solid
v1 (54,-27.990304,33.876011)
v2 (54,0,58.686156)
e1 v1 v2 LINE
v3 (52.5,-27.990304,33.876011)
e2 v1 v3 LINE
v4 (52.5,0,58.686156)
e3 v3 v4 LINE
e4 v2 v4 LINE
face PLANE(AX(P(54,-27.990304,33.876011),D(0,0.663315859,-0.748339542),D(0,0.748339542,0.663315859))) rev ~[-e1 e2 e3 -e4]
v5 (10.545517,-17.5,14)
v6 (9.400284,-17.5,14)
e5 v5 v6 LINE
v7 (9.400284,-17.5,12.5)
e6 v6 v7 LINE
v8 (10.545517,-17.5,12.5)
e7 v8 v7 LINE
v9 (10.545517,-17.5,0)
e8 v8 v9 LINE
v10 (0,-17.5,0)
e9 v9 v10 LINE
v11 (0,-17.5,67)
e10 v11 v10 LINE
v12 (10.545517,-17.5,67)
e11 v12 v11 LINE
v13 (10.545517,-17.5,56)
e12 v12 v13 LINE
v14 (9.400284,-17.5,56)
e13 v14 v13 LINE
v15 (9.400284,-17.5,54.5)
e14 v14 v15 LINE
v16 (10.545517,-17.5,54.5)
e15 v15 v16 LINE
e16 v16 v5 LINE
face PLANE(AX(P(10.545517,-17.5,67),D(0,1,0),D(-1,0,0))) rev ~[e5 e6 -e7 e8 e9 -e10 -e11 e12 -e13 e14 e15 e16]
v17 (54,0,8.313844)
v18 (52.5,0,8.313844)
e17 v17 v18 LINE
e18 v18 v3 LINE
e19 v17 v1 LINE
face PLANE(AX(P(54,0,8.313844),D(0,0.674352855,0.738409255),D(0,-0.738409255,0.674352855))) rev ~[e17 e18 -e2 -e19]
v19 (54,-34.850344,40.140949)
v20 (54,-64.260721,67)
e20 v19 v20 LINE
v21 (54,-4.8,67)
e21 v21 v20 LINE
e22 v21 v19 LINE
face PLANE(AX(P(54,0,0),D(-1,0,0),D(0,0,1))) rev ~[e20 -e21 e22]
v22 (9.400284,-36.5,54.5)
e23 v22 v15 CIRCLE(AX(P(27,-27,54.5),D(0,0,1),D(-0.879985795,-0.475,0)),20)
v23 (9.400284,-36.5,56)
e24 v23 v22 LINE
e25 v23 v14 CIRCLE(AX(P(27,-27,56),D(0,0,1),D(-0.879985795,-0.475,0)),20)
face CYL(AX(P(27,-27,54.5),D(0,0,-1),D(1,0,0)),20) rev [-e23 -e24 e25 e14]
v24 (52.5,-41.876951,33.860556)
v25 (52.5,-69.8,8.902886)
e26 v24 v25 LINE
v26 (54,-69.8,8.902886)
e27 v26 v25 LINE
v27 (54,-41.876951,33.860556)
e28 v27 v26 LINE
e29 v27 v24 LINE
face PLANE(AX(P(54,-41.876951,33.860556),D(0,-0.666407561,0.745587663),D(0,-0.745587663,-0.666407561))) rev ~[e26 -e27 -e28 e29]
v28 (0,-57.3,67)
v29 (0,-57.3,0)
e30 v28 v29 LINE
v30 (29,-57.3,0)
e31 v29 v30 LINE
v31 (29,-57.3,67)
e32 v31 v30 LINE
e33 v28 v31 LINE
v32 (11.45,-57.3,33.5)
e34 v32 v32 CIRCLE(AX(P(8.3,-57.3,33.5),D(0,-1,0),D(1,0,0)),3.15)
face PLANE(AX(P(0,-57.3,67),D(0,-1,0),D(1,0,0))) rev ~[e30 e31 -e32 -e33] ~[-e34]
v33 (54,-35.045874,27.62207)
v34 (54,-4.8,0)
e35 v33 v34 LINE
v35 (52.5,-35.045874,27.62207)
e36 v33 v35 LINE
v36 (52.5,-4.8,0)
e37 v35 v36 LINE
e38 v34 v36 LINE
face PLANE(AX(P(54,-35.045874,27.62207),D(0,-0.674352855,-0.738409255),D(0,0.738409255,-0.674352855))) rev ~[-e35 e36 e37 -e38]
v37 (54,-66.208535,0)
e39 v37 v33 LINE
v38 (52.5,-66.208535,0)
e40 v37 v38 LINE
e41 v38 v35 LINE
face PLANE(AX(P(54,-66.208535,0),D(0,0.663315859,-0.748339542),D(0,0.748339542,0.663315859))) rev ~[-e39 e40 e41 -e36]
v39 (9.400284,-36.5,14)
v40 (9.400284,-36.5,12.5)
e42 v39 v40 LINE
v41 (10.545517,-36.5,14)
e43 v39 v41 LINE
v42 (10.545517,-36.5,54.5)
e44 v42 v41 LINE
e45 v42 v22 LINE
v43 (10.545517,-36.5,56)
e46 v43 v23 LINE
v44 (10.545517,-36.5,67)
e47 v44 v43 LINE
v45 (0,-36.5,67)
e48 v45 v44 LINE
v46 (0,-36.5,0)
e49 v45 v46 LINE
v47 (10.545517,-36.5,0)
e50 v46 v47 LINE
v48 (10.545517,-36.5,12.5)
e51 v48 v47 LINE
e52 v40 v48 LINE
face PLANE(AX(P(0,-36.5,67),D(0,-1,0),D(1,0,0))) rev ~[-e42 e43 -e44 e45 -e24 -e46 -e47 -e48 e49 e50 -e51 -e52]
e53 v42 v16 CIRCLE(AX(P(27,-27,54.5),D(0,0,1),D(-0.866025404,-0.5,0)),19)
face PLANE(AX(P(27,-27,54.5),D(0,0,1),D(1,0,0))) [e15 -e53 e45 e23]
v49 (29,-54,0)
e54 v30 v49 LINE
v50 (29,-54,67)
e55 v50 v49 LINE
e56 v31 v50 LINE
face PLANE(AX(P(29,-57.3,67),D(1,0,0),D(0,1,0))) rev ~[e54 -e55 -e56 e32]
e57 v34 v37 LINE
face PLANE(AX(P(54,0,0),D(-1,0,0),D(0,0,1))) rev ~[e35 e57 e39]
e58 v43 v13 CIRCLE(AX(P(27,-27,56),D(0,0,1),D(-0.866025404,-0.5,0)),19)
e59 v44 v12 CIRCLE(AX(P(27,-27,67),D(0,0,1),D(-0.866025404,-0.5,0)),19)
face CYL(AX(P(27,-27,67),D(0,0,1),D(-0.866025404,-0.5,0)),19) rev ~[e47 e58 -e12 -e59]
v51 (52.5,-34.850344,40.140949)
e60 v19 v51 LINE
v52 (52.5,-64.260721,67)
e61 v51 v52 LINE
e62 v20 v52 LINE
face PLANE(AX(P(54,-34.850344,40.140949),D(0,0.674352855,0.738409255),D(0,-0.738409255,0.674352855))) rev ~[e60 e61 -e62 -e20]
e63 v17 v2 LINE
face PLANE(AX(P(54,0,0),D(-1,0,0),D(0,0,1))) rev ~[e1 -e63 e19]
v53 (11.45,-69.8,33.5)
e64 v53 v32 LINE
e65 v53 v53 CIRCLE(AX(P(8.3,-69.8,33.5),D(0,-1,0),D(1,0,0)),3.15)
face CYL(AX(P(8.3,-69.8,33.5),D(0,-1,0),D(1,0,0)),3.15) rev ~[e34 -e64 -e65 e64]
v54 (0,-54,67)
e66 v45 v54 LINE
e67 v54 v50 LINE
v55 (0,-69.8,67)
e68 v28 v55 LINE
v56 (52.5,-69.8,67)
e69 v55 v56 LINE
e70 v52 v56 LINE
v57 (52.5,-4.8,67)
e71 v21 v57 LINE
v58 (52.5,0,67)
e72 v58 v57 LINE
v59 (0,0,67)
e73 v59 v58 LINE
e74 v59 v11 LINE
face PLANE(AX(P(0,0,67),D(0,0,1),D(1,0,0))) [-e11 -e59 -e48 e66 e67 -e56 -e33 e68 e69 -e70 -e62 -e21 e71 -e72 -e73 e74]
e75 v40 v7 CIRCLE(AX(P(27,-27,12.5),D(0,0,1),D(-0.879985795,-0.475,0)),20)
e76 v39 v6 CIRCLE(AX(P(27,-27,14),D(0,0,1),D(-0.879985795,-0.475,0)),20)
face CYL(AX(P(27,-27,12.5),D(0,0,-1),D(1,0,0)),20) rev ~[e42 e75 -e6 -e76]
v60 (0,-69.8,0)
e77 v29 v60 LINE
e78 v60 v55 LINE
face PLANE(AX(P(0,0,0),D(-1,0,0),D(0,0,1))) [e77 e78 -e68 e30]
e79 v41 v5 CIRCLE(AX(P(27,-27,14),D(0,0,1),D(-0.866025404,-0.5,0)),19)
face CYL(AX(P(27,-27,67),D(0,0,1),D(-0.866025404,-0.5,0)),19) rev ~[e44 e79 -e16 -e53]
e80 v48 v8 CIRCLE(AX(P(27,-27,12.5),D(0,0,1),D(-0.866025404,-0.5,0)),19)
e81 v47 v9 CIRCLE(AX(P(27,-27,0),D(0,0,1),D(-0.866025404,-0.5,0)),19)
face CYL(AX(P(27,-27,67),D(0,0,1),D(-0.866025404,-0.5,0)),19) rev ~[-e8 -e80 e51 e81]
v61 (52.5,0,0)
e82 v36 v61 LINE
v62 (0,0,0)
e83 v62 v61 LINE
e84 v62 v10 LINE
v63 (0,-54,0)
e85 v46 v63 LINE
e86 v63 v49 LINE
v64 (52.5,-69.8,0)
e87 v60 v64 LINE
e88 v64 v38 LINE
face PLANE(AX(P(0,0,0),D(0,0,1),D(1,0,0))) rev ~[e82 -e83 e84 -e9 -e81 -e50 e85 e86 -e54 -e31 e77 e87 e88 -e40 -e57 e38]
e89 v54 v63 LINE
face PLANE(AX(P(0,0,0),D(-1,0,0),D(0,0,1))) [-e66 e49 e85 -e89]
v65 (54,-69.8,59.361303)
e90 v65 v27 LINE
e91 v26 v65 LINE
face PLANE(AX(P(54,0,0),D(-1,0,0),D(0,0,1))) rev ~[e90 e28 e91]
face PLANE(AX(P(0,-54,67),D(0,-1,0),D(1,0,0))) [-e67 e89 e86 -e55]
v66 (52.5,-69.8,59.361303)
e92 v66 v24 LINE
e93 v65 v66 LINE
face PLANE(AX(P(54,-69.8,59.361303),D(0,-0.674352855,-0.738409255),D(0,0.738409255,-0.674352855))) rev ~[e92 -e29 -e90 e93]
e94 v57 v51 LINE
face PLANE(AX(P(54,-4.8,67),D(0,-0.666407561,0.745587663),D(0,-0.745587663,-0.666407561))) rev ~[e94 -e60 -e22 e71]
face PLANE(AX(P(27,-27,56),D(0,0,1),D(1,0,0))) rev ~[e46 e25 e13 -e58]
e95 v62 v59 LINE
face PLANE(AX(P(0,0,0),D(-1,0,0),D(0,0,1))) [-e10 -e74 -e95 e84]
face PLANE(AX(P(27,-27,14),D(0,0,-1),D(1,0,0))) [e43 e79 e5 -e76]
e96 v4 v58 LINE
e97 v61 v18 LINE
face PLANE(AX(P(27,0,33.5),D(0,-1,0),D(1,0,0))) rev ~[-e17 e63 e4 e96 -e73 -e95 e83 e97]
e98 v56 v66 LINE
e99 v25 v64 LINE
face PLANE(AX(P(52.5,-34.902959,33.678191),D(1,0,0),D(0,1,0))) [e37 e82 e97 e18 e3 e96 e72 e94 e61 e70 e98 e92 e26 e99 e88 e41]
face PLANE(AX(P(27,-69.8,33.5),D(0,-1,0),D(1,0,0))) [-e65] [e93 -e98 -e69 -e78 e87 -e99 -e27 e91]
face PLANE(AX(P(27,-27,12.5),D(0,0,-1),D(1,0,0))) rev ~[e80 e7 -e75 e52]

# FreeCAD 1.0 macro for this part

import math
import FreeCAD as App
import Part
import Sketcher


def add_polygon(sketch, points):
    """Adds a closed chain of lines whose ends are joined by coincident constraints."""
    first, n = sketch.GeometryCount, len(points)
    for a, b in zip(points, points[1:] + points[:1]):
        sketch.addGeometry(Part.LineSegment(App.Vector(*a, 0), App.Vector(*b, 0)), False)
    for i in range(n):
        sketch.addConstraint(Sketcher.Constraint("Coincident", first + i, 2, first + (i + 1) % n, 1))

doc = App.newDocument("Part")
body = doc.addObject("PartDesign::Body", "Body")

sketch1 = doc.addObject("Sketcher::SketchObject", "Sketch")
body.addObject(sketch1)
sketch1.AttachmentSupport = (doc.XZ_Plane, [""])
sketch1.MapMode = "FlatFace"
add_polygon(sketch1, [(0, 67), (0, 0), (54, 0), (54, 67)])
sketch1.addConstraint([
    Sketcher.Constraint("Vertical", 0),
    Sketcher.Constraint("Horizontal", 1),
    Sketcher.Constraint("Vertical", 2),
    Sketcher.Constraint("Horizontal", 3),
    Sketcher.Constraint("Coincident", 0, 2, -1, 1),
    Sketcher.Constraint("DistanceX", 1, 1, 1, 2, 54.0),
    Sketcher.Constraint("DistanceY", 0, 2, 0, 1, 67.0),
])
pad1 = doc.addObject("PartDesign::Pad", "Pad")
body.addObject(pad1)
pad1.Profile = sketch1
pad1.Length = 69.8

sketch2 = doc.addObject("Sketcher::SketchObject", "Sketch001")
body.addObject(sketch2)
sketch2.AttachmentSupport = (doc.XY_Plane, [""])
sketch2.MapMode = "FlatFace"
sketch2.AttachmentOffset = App.Placement(App.Vector(0, 0, 67), App.Rotation())
sketch2.addGeometry(Part.LineSegment(App.Vector(0, -36.5, 0), App.Vector(10.545517, -36.5, 0)), False)
sketch2.addGeometry(Part.ArcOfCircle(Part.Circle(App.Vector(27, -27, 0), App.Vector(0, 0, 1), 19), math.radians(-150), math.radians(150)), False)
sketch2.addGeometry(Part.LineSegment(App.Vector(10.545517, -17.5, 0), App.Vector(0, -17.5, 0)), False)
sketch2.addGeometry(Part.LineSegment(App.Vector(0, -17.5, 0), App.Vector(0, -36.5, 0)), False)
add_polygon(sketch2, [(0, -54), (0, -57.3), (29, -57.3), (29, -54)])
sketch2.addConstraint([
    Sketcher.Constraint("Coincident", 0, 2, 1, 1),
    Sketcher.Constraint("Coincident", 1, 2, 2, 1),
    Sketcher.Constraint("Coincident", 2, 2, 3, 1),
    Sketcher.Constraint("Coincident", 3, 2, 0, 1),
    Sketcher.Constraint("Horizontal", 0),
    Sketcher.Constraint("Horizontal", 2),
    Sketcher.Constraint("Vertical", 3),
    Sketcher.Constraint("Vertical", 4),
    Sketcher.Constraint("Horizontal", 5),
    Sketcher.Constraint("Vertical", 6),
    Sketcher.Constraint("Horizontal", 7),
    Sketcher.Constraint("PointOnObject", 2, 2, -2),
    Sketcher.Constraint("PointOnObject", 4, 2, -2),
    Sketcher.Constraint("Vertical", 0, 2, 1, 2),
    Sketcher.Constraint("Radius", 1, 19.0),
    Sketcher.Constraint("DistanceX", 5, 1, 5, 2, 29.0),
    Sketcher.Constraint("DistanceY", 3, 2, 3, 1, 19.0),
    Sketcher.Constraint("DistanceY", 4, 2, 4, 1, 3.3),
    Sketcher.Constraint("DistanceX", -1, 1, 1, 3, 27.0),
    Sketcher.Constraint("DistanceY", 1, 3, -1, 1, 27.0),
    Sketcher.Constraint("DistanceY", 6, 2, -1, 1, 54.0),
])
pocket1 = doc.addObject("PartDesign::Pocket", "Pocket")
body.addObject(pocket1)
pocket1.Profile = sketch2
pocket1.Length = 100

sketch3 = doc.addObject("Sketcher::SketchObject", "Sketch002")
body.addObject(sketch3)
sketch3.AttachmentSupport = (doc.YZ_Plane, [""])
sketch3.MapMode = "FlatFace"
sketch3.AttachmentOffset = App.Placement(App.Vector(0, 0, 54), App.Rotation())
add_polygon(sketch3, [(-69.8, 67), (-69.8, 59.361303), (-41.876951, 33.860556), (-69.8, 8.902886), (-69.8, 0), (-66.208535, 0), (-35.045874, 27.62207), (-4.8, 0), (0, 0), (0, 8.313844), (-27.990304, 33.876011), (0, 58.686156), (0, 67), (-4.8, 67), (-34.850344, 40.140949), (-64.260721, 67)])
sketch3.addConstraint([
    Sketcher.Constraint("Vertical", 0),
    Sketcher.Constraint("Vertical", 3),
    Sketcher.Constraint("Horizontal", 4),
    Sketcher.Constraint("Horizontal", 7),
    Sketcher.Constraint("Vertical", 8),
    Sketcher.Constraint("Vertical", 11),
    Sketcher.Constraint("Horizontal", 12),
    Sketcher.Constraint("Horizontal", 15),
    Sketcher.Constraint("Coincident", 7, 2, -1, 1),
    Sketcher.Constraint("PointOnObject", 3, 2, -1),
    Sketcher.Constraint("PointOnObject", 10, 2, -2),
    Sketcher.Constraint("Parallel", 1, 6),
    Sketcher.Constraint("Parallel", 6, 9),
    Sketcher.Constraint("Parallel", 5, 10),
    Sketcher.Constraint("Parallel", 2, 13),
    Sketcher.Constraint("Parallel", 9, 14),
    Sketcher.Constraint("Horizontal", 12, 2, 14, 2),
    Sketcher.Constraint("Vertical", 0, 2, 2, 2),
    Sketcher.Constraint("Vertical", 6, 2, 12, 2),
    Sketcher.Constraint("Equal", 8, 11),
    Sketcher.Constraint("DistanceX", 7, 1, 7, 2, 4.8),
    Sketcher.Constraint("DistanceY", -1, 1, 11, 2, 67.0),
    Sketcher.Constraint("DistanceX", 3, 2, 6, 2, 65.0),
    Sketcher.Constraint("DistanceX", 15, 2, 15, 1, 5.539279),
    Sketcher.Constraint("DistanceY", 1, 2, 10, 2, 24.8256),
    Sketcher.Constraint("Distance", 1, 37.815139),
    Sketcher.Constraint("Distance", 2, 37.451061),
    Sketcher.Constraint("Distance", 9, 37.90622),
    Sketcher.Constraint("Distance", 13, 40.30424),
    Sketcher.Constraint("DistanceX", 4, 1, 4, 2, 3.591465),
    Sketcher.Constraint("DistanceY", 0, 2, 0, 1, 7.638697),
])
pocket2 = doc.addObject("PartDesign::Pocket", "Pocket001")
body.addObject(pocket2)
pocket2.Profile = sketch3
pocket2.Length = 1.5

sketch4 = doc.addObject("Sketcher::SketchObject", "Sketch003")
body.addObject(sketch4)
sketch4.AttachmentSupport = (doc.XZ_Plane, [""])
sketch4.MapMode = "FlatFace"
sketch4.AttachmentOffset = App.Placement(App.Vector(0, 0, 69.8), App.Rotation())
sketch4.addGeometry(Part.Circle(App.Vector(8.3, 33.5, 0), App.Vector(0, 0, 1), 3.15), False)
sketch4.addConstraint([
    Sketcher.Constraint("Diameter", 0, 6.3),
    Sketcher.Constraint("DistanceX", -1, 1, 0, 3, 8.3),
    Sketcher.Constraint("DistanceY", -1, 1, 0, 3, 33.5),
])
pocket3 = doc.addObject("PartDesign::Pocket", "Pocket002")
body.addObject(pocket3)
pocket3.Profile = sketch4
pocket3.Length = 12.5

sketch5 = doc.addObject("Sketcher::SketchObject", "Sketch004")
body.addObject(sketch5)
sketch5.AttachmentSupport = (doc.XY_Plane, [""])
sketch5.MapMode = "FlatFace"
sketch5.AttachmentOffset = App.Placement(App.Vector(0, 0, 54.5), App.Rotation())
sketch5.addGeometry(Part.Circle(App.Vector(27, -27, 0), App.Vector(0, 0, 1), 20), False)
sketch5.addConstraint([
    Sketcher.Constraint("Diameter", 0, 40.0),
    Sketcher.Constraint("DistanceX", -1, 1, 0, 3, 27.0),
    Sketcher.Constraint("DistanceY", 0, 3, -1, 1, 27.0),
])
pocket4 = doc.addObject("PartDesign::Pocket", "Pocket003")
body.addObject(pocket4)
pocket4.Profile = sketch5
pocket4.Length = 1.5
pocket4.Reversed = True

sketch6 = doc.addObject("Sketcher::SketchObject", "Sketch005")
body.addObject(sketch6)
sketch6.AttachmentSupport = (doc.XY_Plane, [""])
sketch6.MapMode = "FlatFace"
sketch6.AttachmentOffset = App.Placement(App.Vector(0, 0, 12.5), App.Rotation())
sketch6.addGeometry(Part.Circle(App.Vector(27, -27, 0), App.Vector(0, 0, 1), 20), False)
sketch6.addConstraint([
    Sketcher.Constraint("Diameter", 0, 40.0),
    Sketcher.Constraint("DistanceX", -1, 1, 0, 3, 27.0),
    Sketcher.Constraint("DistanceY", 0, 3, -1, 1, 27.0),
])
pocket5 = doc.addObject("PartDesign::Pocket", "Pocket004")
body.addObject(pocket5)
pocket5.Profile = sketch6
pocket5.Length = 1.5
pocket5.Reversed = True

doc.recompute()
